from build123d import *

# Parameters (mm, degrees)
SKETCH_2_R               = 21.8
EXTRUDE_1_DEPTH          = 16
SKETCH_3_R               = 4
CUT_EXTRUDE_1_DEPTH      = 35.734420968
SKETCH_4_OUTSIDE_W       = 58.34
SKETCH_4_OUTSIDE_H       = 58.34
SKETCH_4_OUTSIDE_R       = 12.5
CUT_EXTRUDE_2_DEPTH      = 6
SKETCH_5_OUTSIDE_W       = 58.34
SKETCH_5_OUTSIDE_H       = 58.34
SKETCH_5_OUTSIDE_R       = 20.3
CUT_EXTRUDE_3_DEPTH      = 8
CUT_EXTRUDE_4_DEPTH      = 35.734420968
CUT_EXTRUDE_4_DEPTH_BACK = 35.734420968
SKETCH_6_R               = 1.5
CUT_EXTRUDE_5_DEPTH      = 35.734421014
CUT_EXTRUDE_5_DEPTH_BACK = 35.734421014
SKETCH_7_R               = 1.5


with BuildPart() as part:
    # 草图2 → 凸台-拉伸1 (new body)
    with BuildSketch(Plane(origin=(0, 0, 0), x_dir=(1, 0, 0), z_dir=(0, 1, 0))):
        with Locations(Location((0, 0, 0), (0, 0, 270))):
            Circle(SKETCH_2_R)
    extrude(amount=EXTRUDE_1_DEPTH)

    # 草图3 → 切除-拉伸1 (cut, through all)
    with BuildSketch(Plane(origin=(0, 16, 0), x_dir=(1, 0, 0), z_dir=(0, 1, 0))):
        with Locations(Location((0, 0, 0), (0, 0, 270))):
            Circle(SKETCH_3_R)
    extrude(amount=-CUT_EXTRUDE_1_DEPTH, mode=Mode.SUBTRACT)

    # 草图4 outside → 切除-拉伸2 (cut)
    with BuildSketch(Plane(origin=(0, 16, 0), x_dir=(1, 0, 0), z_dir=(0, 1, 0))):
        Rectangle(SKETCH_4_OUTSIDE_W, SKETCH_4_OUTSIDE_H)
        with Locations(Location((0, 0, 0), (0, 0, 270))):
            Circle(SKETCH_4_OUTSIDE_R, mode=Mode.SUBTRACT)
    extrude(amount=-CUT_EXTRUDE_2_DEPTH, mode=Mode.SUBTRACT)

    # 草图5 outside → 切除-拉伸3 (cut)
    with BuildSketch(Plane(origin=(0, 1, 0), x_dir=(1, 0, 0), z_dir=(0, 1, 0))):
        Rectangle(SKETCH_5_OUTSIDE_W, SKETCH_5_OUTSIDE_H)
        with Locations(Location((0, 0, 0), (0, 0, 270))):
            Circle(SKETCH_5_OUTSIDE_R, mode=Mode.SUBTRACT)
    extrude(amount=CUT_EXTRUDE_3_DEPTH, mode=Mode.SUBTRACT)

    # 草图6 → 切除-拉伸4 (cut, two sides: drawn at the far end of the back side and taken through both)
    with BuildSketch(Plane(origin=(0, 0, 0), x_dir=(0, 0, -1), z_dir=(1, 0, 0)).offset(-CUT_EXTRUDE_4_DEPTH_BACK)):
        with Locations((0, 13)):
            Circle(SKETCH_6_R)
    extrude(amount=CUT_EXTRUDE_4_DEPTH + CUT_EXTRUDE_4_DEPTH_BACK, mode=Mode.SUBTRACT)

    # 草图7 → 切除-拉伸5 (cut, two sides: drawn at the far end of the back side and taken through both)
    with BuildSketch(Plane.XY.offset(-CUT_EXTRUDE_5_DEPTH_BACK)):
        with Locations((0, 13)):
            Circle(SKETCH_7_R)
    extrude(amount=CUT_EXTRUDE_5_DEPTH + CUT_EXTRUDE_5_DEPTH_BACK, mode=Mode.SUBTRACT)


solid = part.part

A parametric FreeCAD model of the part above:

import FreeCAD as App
import Part
import Sketcher

V = App.Vector


def add_polygon(sketch, points):
    """Adds a closed chain of lines whose ends are joined by coincident constraints."""
    first, n = sketch.GeometryCount, len(points)
    for a, b in zip(points, points[1:] + points[:1]):
        sketch.addGeometry(Part.LineSegment(App.Vector(*a, 0), App.Vector(*b, 0)), False)
    for i in range(n):
        sketch.addConstraint(Sketcher.Constraint("Coincident", first + i, 2, first + (i + 1) % n, 1))

doc = App.newDocument("Part")
body = doc.addObject("PartDesign::Body", "Body")

# Sketch on XZ plane
sketch1 = body.newObject("Sketcher::SketchObject", "Sketch")
sketch1.AttachmentSupport = (doc.getObject("XZ_Plane"), [""])
sketch1.MapMode = "FlatFace"
sketch1.addGeometry(Part.Circle(V(0, 0, 0), V(0, 0, 1), 22), False)
sketch1.addConstraint([
    Sketcher.Constraint("Coincident", 0, 3, -1, 1),
    Sketcher.Constraint("Diameter", 0, 43.6),
])
pad1 = body.newObject("PartDesign::Pad", "Pad")
pad1.Profile = sketch1
pad1.Length = 16
pad1.Reversed = True

# Sketch on XZ plane
sketch2 = body.newObject("Sketcher::SketchObject", "Sketch001")
sketch2.AttachmentSupport = (doc.getObject("XZ_Plane"), [""])
sketch2.MapMode = "FlatFace"
sketch2.AttachmentOffset = App.Placement(V(0, 0, -16), App.Rotation())
sketch2.addGeometry(Part.Circle(V(0, 0, 0), V(0, 0, 1), 4), False)
sketch2.addConstraint([
    Sketcher.Constraint("Coincident", 0, 3, -1, 1),
    Sketcher.Constraint("Diameter", 0, 8.0),
])
pocket1 = body.newObject("PartDesign::Pocket", "Pocket")
pocket1.Profile = sketch2
pocket1.Type = "ThroughAll"
pocket1.Reversed = True

# Sketch on XZ plane
sketch3 = body.newObject("Sketcher::SketchObject", "Sketch002")
sketch3.AttachmentSupport = (doc.getObject("XZ_Plane"), [""])
sketch3.MapMode = "FlatFace"
sketch3.AttachmentOffset = App.Placement(V(0, 0, -16), App.Rotation())
add_polygon(sketch3, [(-29, -29), (-29, 29), (29, 29), (29, -29)])  # lines 0-3
sketch3.addGeometry(Part.Circle(V(0, 0, 0), V(0, 0, 1), 12), False)  # 4
sketch3.addConstraint([
    Sketcher.Constraint("Vertical", 0),
    Sketcher.Constraint("Horizontal", 1),
    Sketcher.Constraint("Vertical", 2),
    Sketcher.Constraint("Horizontal", 3),
    Sketcher.Constraint("Coincident", 4, 3, -1, 1),
    Sketcher.Constraint("Symmetric", 0, 2, 2, 2, -1, 1),
    Sketcher.Constraint("Equal", 3, 0),
    Sketcher.Constraint("Diameter", 4, 25.0),
    Sketcher.Constraint("DistanceX", 1, 1, 1, 2, 58.34),
])
pocket2 = body.newObject("PartDesign::Pocket", "Pocket001")
pocket2.Profile = sketch3
pocket2.Length = 6
pocket2.Reversed = True

# Sketch on XZ plane
sketch4 = body.newObject("Sketcher::SketchObject", "Sketch003")
sketch4.AttachmentSupport = (doc.getObject("XZ_Plane"), [""])
sketch4.MapMode = "FlatFace"
sketch4.AttachmentOffset = App.Placement(V(0, 0, -1), App.Rotation())
add_polygon(sketch4, [(-29, -29), (-29, 29), (29, 29), (29, -29)])  # lines 0-3
sketch4.addGeometry(Part.Circle(V(0, 0, 0), V(0, 0, 1), 20), False)  # 4
sketch4.addConstraint([
    Sketcher.Constraint("Vertical", 0),
    Sketcher.Constraint("Horizontal", 1),
    Sketcher.Constraint("Vertical", 2),
    Sketcher.Constraint("Horizontal", 3),
    Sketcher.Constraint("Coincident", 4, 3, -1, 1),
    Sketcher.Constraint("Symmetric", 0, 2, 2, 2, -1, 1),
    Sketcher.Constraint("Equal", 3, 0),
    Sketcher.Constraint("Diameter", 4, 40.6),
    Sketcher.Constraint("DistanceX", 1, 1, 1, 2, 58.34),
])
pocket3 = body.newObject("PartDesign::Pocket", "Pocket002")
pocket3.Profile = sketch4
pocket3.Length = 8

# Sketch on YZ plane
sketch5 = body.newObject("Sketcher::SketchObject", "Sketch004")
sketch5.AttachmentSupport = (doc.getObject("YZ_Plane"), [""])
sketch5.MapMode = "FlatFace"
sketch5.addGeometry(Part.Circle(V(13, 0, 0), V(0, 0, 1), 1.5), False)
sketch5.addConstraint([
    Sketcher.Constraint("PointOnObject", 0, 3, -1),
    Sketcher.Constraint("Diameter", 0, 3.0),
    Sketcher.Constraint("DistanceX", -1, 1, 0, 3, 13.0),
])
pocket4 = body.newObject("PartDesign::Pocket", "Pocket003")
pocket4.Profile = sketch5
pocket4.Type = "ThroughAll"
pocket4.Midplane = True

# Sketch on XY plane
sketch6 = body.newObject("Sketcher::SketchObject", "Sketch005")
sketch6.AttachmentSupport = (doc.getObject("XY_Plane"), [""])
sketch6.MapMode = "FlatFace"
sketch6.addGeometry(Part.Circle(V(0, 13, 0), V(0, 0, 1), 1.5), False)
sketch6.addConstraint([
    Sketcher.Constraint("PointOnObject", 0, 3, -2),
    Sketcher.Constraint("Diameter", 0, 3.0),
    Sketcher.Constraint("DistanceY", -1, 1, 0, 3, 13.0),
])
pocket5 = body.newObject("PartDesign::Pocket", "Pocket004")
pocket5.Profile = sketch6
pocket5.Type = "ThroughAll"
pocket5.Midplane = True

doc.recompute()
